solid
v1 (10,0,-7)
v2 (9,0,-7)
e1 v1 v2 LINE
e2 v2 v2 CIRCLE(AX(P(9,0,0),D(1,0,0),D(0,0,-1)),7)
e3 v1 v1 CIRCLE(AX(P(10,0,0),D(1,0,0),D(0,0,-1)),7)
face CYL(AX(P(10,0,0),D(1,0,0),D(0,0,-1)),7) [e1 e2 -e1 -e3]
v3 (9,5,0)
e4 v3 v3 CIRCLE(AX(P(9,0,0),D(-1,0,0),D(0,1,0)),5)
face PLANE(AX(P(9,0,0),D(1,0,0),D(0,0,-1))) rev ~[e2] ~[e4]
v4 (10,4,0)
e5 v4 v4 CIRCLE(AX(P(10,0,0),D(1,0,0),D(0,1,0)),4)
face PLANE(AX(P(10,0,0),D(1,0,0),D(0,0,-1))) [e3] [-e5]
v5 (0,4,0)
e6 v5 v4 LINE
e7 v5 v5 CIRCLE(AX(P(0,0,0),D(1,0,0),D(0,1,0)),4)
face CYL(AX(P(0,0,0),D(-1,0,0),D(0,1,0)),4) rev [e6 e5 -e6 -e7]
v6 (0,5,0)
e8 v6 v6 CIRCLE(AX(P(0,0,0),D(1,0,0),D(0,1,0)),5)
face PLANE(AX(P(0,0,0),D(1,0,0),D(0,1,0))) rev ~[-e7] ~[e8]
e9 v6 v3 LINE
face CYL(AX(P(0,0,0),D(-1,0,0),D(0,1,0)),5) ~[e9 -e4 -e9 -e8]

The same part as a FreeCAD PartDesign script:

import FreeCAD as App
import Part
import Sketcher
Q = App.Units.Quantity

doc = App.newDocument("Part")
params = doc.addObject("Spreadsheet::Sheet", "Params")
for row, (alias, value) in enumerate([
    ("sketch1_diameter", "10 mm"),
    ("sketch1_diameter2", "8 mm"),
    ("pad1_length", "10 mm"),
    ("sketch2_diameter", "14 mm"),
    ("sketch2_diameter2", "8 mm"),
    ("pad2_length", "1 mm"),
], start=1):
    params.set(f"A{row}", alias)
    params.set(f"B{row}", "=" + value)
    params.setAlias(f"B{row}", alias)

body = doc.addObject("PartDesign::Body", "Body")

sketch1 = doc.addObject("Sketcher::SketchObject", "Sketch")
body.addObject(sketch1)
sketch1.AttachmentSupport = (doc.YZ_Plane, [""])
sketch1.MapMode = "FlatFace"
sketch1.addGeometry(Part.Circle(App.Vector(0, 0, 0), App.Vector(0, 0, 1), 5), False)
sketch1.addGeometry(Part.Circle(App.Vector(0, 0, 0), App.Vector(0, 0, 1), 4), False)
sketch1.addConstraint(Sketcher.Constraint("Coincident", 0, 3, -1, 1))
sketch1.addConstraint(Sketcher.Constraint("Coincident", 1, 3, -1, 1))
sketch1.addConstraint(Sketcher.Constraint("Diameter", 0, Q("10 mm")))
sketch1.addConstraint(Sketcher.Constraint("Diameter", 1, Q("8 mm")))
sketch1.setExpression("Constraints[2]", "Params.sketch1_diameter")
sketch1.setExpression("Constraints[3]", "Params.sketch1_diameter2")
pad1 = doc.addObject("PartDesign::Pad", "Pad")
body.addObject(pad1)
pad1.Profile = sketch1
pad1.setExpression("Length", "Params.pad1_length")

sketch2 = doc.addObject("Sketcher::SketchObject", "Sketch001")
body.addObject(sketch2)
sketch2.AttachmentSupport = (doc.YZ_Plane, [""])
sketch2.MapMode = "FlatFace"
sketch2.AttachmentOffset = App.Placement(App.Vector(0, 0, 10), App.Rotation())
sketch2.addGeometry(Part.Circle(App.Vector(0, 0, 0), App.Vector(0, 0, 1), 7), False)
sketch2.addGeometry(Part.Circle(App.Vector(0, 0, 0), App.Vector(0, 0, 1), 4), False)
sketch2.addConstraint(Sketcher.Constraint("Coincident", 0, 3, -1, 1))
sketch2.addConstraint(Sketcher.Constraint("Coincident", 1, 3, -1, 1))
sketch2.addConstraint(Sketcher.Constraint("Diameter", 0, Q("14 mm")))
sketch2.addConstraint(Sketcher.Constraint("Diameter", 1, Q("8 mm")))
sketch2.setExpression("Constraints[2]", "Params.sketch2_diameter")
sketch2.setExpression("Constraints[3]", "Params.sketch2_diameter2")
pad2 = doc.addObject("PartDesign::Pad", "Pad001")
body.addObject(pad2)
pad2.Profile = sketch2
pad2.setExpression("Length", "Params.pad2_length")
pad2.Reversed = True

doc.recompute()
